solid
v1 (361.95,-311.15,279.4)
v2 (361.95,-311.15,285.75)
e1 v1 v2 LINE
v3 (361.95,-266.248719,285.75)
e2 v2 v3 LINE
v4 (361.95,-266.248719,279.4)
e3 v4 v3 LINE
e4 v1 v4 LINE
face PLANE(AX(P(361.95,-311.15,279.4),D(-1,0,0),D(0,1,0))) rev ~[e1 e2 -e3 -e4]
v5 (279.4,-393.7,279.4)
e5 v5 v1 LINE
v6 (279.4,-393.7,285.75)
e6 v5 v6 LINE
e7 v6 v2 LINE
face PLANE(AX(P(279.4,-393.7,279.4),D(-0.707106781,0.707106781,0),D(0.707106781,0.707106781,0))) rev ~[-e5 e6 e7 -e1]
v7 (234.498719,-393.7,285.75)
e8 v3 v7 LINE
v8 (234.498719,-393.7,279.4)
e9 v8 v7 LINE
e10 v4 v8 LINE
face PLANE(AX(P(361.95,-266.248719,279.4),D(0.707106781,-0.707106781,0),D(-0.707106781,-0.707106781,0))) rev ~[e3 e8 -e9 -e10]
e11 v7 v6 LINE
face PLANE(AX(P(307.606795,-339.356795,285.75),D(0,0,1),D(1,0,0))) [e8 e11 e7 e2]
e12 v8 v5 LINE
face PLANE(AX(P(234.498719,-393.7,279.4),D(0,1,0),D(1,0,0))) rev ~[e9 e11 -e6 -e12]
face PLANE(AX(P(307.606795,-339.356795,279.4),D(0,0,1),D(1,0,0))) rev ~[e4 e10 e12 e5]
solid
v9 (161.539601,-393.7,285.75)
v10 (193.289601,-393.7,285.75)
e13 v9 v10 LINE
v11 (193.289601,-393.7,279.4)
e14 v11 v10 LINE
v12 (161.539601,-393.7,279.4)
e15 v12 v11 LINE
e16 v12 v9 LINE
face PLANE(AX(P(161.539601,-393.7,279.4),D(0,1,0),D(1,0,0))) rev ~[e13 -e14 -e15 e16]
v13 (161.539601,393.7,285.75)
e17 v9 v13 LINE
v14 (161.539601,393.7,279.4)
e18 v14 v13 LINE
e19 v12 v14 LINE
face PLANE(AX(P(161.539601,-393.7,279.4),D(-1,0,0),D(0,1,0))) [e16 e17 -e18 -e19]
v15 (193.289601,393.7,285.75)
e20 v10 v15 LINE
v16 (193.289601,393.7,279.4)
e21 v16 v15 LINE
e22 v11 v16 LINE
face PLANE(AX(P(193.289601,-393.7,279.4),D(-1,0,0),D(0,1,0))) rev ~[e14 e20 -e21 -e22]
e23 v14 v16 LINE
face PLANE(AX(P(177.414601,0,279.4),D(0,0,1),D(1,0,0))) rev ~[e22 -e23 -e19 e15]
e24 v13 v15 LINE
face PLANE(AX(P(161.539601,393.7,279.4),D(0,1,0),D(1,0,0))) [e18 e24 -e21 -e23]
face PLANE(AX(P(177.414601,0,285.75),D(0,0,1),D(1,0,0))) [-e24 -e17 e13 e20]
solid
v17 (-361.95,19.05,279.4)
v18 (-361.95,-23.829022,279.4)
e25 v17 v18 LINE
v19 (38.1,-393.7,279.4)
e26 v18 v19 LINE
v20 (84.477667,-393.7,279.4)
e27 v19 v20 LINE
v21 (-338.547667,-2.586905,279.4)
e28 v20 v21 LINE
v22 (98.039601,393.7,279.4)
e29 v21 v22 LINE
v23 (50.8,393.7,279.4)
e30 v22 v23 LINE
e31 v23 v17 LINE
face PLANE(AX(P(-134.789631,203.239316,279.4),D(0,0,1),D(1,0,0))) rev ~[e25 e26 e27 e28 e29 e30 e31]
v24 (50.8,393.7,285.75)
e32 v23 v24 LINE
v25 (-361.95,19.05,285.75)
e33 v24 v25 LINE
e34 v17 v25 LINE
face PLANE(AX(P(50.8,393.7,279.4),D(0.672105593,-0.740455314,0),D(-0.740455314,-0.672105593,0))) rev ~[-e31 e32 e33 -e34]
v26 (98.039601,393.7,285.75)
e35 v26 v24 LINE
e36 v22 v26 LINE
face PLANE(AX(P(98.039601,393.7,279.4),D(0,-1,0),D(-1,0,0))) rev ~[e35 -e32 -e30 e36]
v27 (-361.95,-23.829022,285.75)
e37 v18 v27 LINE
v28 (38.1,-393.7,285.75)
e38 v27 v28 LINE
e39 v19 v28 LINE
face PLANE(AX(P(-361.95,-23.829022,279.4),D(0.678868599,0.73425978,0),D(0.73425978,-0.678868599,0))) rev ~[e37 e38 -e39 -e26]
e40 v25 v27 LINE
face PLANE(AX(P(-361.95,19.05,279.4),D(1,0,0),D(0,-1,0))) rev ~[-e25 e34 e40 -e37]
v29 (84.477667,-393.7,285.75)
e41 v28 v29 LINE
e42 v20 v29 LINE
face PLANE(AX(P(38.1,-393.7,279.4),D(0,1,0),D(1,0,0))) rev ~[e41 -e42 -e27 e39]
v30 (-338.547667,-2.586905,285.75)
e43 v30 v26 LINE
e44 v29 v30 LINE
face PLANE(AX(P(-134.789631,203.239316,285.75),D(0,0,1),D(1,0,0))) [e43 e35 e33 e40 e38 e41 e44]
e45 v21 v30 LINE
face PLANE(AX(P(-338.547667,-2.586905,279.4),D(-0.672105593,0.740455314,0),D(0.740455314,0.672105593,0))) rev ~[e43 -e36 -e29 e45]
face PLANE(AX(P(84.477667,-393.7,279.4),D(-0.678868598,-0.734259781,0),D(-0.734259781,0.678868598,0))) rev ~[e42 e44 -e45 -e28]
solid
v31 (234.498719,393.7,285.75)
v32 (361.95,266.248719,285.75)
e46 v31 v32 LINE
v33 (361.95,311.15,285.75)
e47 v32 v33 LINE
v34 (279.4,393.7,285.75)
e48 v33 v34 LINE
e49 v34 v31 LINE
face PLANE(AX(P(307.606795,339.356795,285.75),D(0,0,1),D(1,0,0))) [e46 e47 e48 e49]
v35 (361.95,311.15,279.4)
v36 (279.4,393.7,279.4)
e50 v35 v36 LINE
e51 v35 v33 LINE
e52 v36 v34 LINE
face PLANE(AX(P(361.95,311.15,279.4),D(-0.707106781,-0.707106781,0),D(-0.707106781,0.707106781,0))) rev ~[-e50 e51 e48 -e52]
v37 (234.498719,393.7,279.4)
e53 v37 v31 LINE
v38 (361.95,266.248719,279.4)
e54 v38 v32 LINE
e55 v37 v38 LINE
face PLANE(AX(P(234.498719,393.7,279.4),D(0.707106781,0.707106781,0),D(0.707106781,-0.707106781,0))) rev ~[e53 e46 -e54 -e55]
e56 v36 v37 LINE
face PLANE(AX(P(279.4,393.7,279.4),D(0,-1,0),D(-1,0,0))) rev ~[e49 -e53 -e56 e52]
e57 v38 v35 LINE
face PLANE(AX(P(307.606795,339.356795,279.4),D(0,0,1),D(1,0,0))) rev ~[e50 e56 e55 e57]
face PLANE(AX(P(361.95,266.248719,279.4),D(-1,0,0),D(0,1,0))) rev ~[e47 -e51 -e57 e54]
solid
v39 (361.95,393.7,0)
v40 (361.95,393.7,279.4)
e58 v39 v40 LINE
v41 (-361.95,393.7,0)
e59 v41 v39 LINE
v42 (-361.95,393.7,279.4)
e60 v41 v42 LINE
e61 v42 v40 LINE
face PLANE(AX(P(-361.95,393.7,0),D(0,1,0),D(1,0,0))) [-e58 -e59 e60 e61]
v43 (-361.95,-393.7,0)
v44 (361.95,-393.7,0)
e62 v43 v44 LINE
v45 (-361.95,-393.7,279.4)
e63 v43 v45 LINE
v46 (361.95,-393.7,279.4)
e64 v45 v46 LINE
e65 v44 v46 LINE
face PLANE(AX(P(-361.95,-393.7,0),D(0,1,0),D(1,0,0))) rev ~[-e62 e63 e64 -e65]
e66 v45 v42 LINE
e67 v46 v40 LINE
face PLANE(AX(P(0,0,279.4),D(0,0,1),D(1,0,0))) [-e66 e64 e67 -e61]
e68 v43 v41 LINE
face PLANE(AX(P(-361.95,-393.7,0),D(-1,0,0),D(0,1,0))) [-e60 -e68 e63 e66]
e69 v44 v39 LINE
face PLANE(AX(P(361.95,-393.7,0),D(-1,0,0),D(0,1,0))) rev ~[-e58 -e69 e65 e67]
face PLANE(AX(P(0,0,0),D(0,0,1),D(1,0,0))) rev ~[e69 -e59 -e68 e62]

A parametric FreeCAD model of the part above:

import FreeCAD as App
import Part
import Sketcher
from FreeCAD import Vector
Q = App.Units.Quantity

doc = App.newDocument("Part")
params = doc.addObject("Spreadsheet::Sheet", "Params")
for row, (alias, value) in enumerate([
    ("sketch1_height", "31 in"),
    ("sketch1_width", "28.5 in"),
    ("pad1_length", "11 in"),
    ("sketch2_height", "31 in"),
    ("sketch2_width", "1.25 in"),
    ("pad2_length", "0.25 in"),
], start=1):
    params.set(f"A{row}", alias)
    params.set(f"B{row}", "=" + value)
    params.setAlias(f"B{row}", alias)

body = doc.addObject("PartDesign::Body", "Body")

# Sketch on XY plane
sketch1 = body.newObject("Sketcher::SketchObject", "Sketch")
sketch1.AttachmentSupport = (doc.getObject("XY_Plane"), [""])
sketch1.MapMode = "FlatFace"
sketch1.addGeometry([
    Part.LineSegment(Vector(-362, 394, 0), Vector(-362, -394, 0)),
    Part.LineSegment(Vector(-362, -394, 0), Vector(362, -394, 0)),
    Part.LineSegment(Vector(362, -394, 0), Vector(362, 394, 0)),
    Part.LineSegment(Vector(362, 394, 0), Vector(-362, 394, 0)),
], False)
sketch1.addConstraint([
    Sketcher.Constraint("Coincident", 0, 2, 1, 1),
    Sketcher.Constraint("Coincident", 1, 2, 2, 1),
    Sketcher.Constraint("Coincident", 2, 2, 3, 1),
    Sketcher.Constraint("Coincident", 3, 2, 0, 1),
    Sketcher.Constraint("Vertical", 0),
    Sketcher.Constraint("Horizontal", 1),
    Sketcher.Constraint("Vertical", 2),
    Sketcher.Constraint("Horizontal", 3),
    Sketcher.Constraint("Symmetric", 0, 2, 2, 2, -1, 1),
    Sketcher.Constraint("DistanceY", 0, 2, 0, 1, Q("31 in")),
    Sketcher.Constraint("DistanceX", 1, 1, 1, 2, Q("28.5 in")),
])
sketch1.setExpression("Constraints[9]", "Params.sketch1_height")
sketch1.setExpression("Constraints[10]", "Params.sketch1_width")
pad1 = body.newObject("PartDesign::Pad", "Pad")
pad1.Profile = sketch1
pad1.setExpression("Length", "Params.pad1_length")
body2 = doc.addObject("PartDesign::Body", "Body001")
body2.AllowCompound = True

# Sketch on XY plane
sketch2 = body2.newObject("Sketcher::SketchObject", "Sketch001")
sketch2.AttachmentSupport = (doc.getObject("XY_Plane001"), [""])
sketch2.MapMode = "FlatFace"
sketch2.AttachmentOffset = App.Placement(Vector(0, 0, 11 * 25.4), App.Rotation())
sketch2.addGeometry([
    Part.LineSegment(Vector(51, 394, 0), Vector(-362, 19, 0)),  # 0
    Part.LineSegment(Vector(-362, 19, 0), Vector(-362, -24, 0)),  # 1
    Part.LineSegment(Vector(-362, -24, 0), Vector(38, -394, 0)),  # 2
    Part.LineSegment(Vector(38, -394, 0), Vector(84, -394, 0)),  # 3
    Part.LineSegment(Vector(84, -394, 0), Vector(-339, -3, 0)),  # 4
    Part.LineSegment(Vector(-339, -3, 0), Vector(98, 394, 0)),  # 5
    Part.LineSegment(Vector(98, 394, 0), Vector(51, 394, 0)),  # 6
    Part.LineSegment(Vector(162, 394, 0), Vector(162, -394, 0)),  # 7
    Part.LineSegment(Vector(162, -394, 0), Vector(193, -394, 0)),  # 8
    Part.LineSegment(Vector(193, -394, 0), Vector(193, 394, 0)),  # 9
    Part.LineSegment(Vector(193, 394, 0), Vector(162, 394, 0)),  # 10
    Part.LineSegment(Vector(362, 311, 0), Vector(279, 394, 0)),  # 11
    Part.LineSegment(Vector(279, 394, 0), Vector(234, 394, 0)),  # 12
    Part.LineSegment(Vector(234, 394, 0), Vector(362, 266, 0)),  # 13
    Part.LineSegment(Vector(362, 266, 0), Vector(362, 311, 0)),  # 14
    Part.LineSegment(Vector(362, -266, 0), Vector(234, -394, 0)),  # 15
    Part.LineSegment(Vector(234, -394, 0), Vector(279, -394, 0)),  # 16
    Part.LineSegment(Vector(279, -394, 0), Vector(362, -311, 0)),  # 17
    Part.LineSegment(Vector(362, -311, 0), Vector(362, -266, 0)),  # 18
], False)
sketch2.addConstraint([
    Sketcher.Constraint("Coincident", 0, 2, 1, 1),
    Sketcher.Constraint("Coincident", 1, 2, 2, 1),
    Sketcher.Constraint("Coincident", 2, 2, 3, 1),
    Sketcher.Constraint("Coincident", 3, 2, 4, 1),
    Sketcher.Constraint("Coincident", 4, 2, 5, 1),
    Sketcher.Constraint("Coincident", 5, 2, 6, 1),
    Sketcher.Constraint("Coincident", 6, 2, 0, 1),
    Sketcher.Constraint("Coincident", 7, 2, 8, 1),
    Sketcher.Constraint("Coincident", 8, 2, 9, 1),
    Sketcher.Constraint("Coincident", 9, 2, 10, 1),
    Sketcher.Constraint("Coincident", 10, 2, 7, 1),
    Sketcher.Constraint("Coincident", 11, 2, 12, 1),
    Sketcher.Constraint("Coincident", 12, 2, 13, 1),
    Sketcher.Constraint("Coincident", 13, 2, 14, 1),
    Sketcher.Constraint("Coincident", 14, 2, 11, 1),
    Sketcher.Constraint("Coincident", 15, 2, 16, 1),
    Sketcher.Constraint("Coincident", 16, 2, 17, 1),
    Sketcher.Constraint("Coincident", 17, 2, 18, 1),
    Sketcher.Constraint("Coincident", 18, 2, 15, 1),
    Sketcher.Constraint("Vertical", 1),
    Sketcher.Constraint("Horizontal", 3),
    Sketcher.Constraint("Horizontal", 6),
    Sketcher.Constraint("Vertical", 7),
    Sketcher.Constraint("Horizontal", 8),
    Sketcher.Constraint("Vertical", 9),
    Sketcher.Constraint("Horizontal", 10),
    Sketcher.Constraint("Horizontal", 12),
    Sketcher.Constraint("Vertical", 14),
    Sketcher.Constraint("Horizontal", 16),
    Sketcher.Constraint("Vertical", 18),
    Sketcher.Constraint("Symmetric", 12, 2, 15, 2, -1),
    Sketcher.Constraint("Symmetric", 14, 2, 17, 2, -1),
    Sketcher.Constraint("Parallel", 2, 4),
    Sketcher.Constraint("Parallel", 0, 5),
    Sketcher.Constraint("Parallel", 11, 13),
    Sketcher.Constraint("Perpendicular", 13, 15),
    Sketcher.Constraint("Parallel", 15, 17),
    Sketcher.Constraint("Horizontal", 3, 2, 7, 2),
    Sketcher.Constraint("Horizontal", 6, 2, 9, 2),
    Sketcher.Constraint("Horizontal", 10, 2, 11, 2),
    Sketcher.Constraint("Horizontal", 8, 2, 15, 2),
    Sketcher.Constraint("Vertical", 11, 2, 16, 2),
    Sketcher.Constraint("DistanceY", 7, 2, 7, 1, Q("31 in")),
    Sketcher.Constraint("DistanceX", -1, 1, 6, 2, Q("2 in")),
    Sketcher.Constraint("DistanceX", -1, 1, 11, 2, Q("11 in")),
    Sketcher.Constraint("DistanceX", 8, 1, 8, 2, Q("1.25 in")),
    Sketcher.Constraint("DistanceX", -1, 1, 2, 2, Q("1.5 in")),
    Sketcher.Constraint("DistanceX", 5, 2, 10, 2, Q("2.5 in")),
    Sketcher.Constraint("DistanceX", 0, 2, -1, 1, Q("14.25 in")),
    Sketcher.Constraint("DistanceY", -1, 1, 0, 2, Q("0.75 in")),
    Sketcher.Constraint("DistanceX", -1, 1, 13, 2, Q("14.25 in")),
    Sketcher.Constraint("DistanceX", 6, 2, 6, 1, 47.239601),
    Sketcher.Constraint("DistanceX", 12, 2, 12, 1, 44.901281),
    Sketcher.Constraint("DistanceX", 3, 1, 3, 2, 46.377667),
    Sketcher.Constraint("DistanceY", 1, 2, 1, 1, 42.879022),
])
sketch2.setExpression("Constraints[42]", "Params.sketch2_height")
sketch2.setExpression("Constraints[45]", "Params.sketch2_width")
pad2 = body2.newObject("PartDesign::Pad", "Pad001")
pad2.Profile = sketch2
pad2.setExpression("Length", "Params.pad2_length")

doc.recompute()
